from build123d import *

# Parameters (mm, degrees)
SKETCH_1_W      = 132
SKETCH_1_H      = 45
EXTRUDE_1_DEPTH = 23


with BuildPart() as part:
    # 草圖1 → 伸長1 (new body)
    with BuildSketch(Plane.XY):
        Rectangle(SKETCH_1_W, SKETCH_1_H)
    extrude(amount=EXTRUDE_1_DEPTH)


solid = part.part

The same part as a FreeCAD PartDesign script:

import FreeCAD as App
import Part
import Sketcher

V = App.Vector
Q = App.Units.Quantity

doc = App.newDocument("Part")
body = doc.addObject("PartDesign::Body", "Body")

sketch1 = body.newObject("Sketcher::SketchObject", "Sketch")
sketch1.AttachmentSupport = (doc.getObject("XY_Plane"), [""])
sketch1.MapMode = "FlatFace"
sketch1.addGeometry(Part.LineSegment(V(-66, 22, 0), V(-66, -22, 0)), False)
sketch1.addGeometry(Part.LineSegment(V(-66, -22, 0), V(66, -22, 0)), False)
sketch1.addGeometry(Part.LineSegment(V(66, -22, 0), V(66, 22, 0)), False)
sketch1.addGeometry(Part.LineSegment(V(66, 22, 0), V(-66, 22, 0)), False)
sketch1.addConstraint(Sketcher.Constraint("Coincident", 0, 2, 1, 1))
sketch1.addConstraint(Sketcher.Constraint("Coincident", 1, 2, 2, 1))
sketch1.addConstraint(Sketcher.Constraint("Coincident", 2, 2, 3, 1))
sketch1.addConstraint(Sketcher.Constraint("Coincident", 3, 2, 0, 1))
sketch1.addConstraint(Sketcher.Constraint("Vertical", 0))
sketch1.addConstraint(Sketcher.Constraint("Horizontal", 1))
sketch1.addConstraint(Sketcher.Constraint("Vertical", 2))
sketch1.addConstraint(Sketcher.Constraint("Horizontal", 3))
sketch1.addConstraint(Sketcher.Constraint("Symmetric", 0, 2, 2, 2, -1, 1))
sketch1.addConstraint(Sketcher.Constraint("DistanceX", 1, 1, 1, 2, Q("132 mm")))
sketch1.addConstraint(Sketcher.Constraint("DistanceY", 0, 2, 0, 1, Q("45 mm")))
pad1 = body.newObject("PartDesign::Pad", "Pad")
pad1.Profile = sketch1
pad1.Length = 23

doc.recompute()
